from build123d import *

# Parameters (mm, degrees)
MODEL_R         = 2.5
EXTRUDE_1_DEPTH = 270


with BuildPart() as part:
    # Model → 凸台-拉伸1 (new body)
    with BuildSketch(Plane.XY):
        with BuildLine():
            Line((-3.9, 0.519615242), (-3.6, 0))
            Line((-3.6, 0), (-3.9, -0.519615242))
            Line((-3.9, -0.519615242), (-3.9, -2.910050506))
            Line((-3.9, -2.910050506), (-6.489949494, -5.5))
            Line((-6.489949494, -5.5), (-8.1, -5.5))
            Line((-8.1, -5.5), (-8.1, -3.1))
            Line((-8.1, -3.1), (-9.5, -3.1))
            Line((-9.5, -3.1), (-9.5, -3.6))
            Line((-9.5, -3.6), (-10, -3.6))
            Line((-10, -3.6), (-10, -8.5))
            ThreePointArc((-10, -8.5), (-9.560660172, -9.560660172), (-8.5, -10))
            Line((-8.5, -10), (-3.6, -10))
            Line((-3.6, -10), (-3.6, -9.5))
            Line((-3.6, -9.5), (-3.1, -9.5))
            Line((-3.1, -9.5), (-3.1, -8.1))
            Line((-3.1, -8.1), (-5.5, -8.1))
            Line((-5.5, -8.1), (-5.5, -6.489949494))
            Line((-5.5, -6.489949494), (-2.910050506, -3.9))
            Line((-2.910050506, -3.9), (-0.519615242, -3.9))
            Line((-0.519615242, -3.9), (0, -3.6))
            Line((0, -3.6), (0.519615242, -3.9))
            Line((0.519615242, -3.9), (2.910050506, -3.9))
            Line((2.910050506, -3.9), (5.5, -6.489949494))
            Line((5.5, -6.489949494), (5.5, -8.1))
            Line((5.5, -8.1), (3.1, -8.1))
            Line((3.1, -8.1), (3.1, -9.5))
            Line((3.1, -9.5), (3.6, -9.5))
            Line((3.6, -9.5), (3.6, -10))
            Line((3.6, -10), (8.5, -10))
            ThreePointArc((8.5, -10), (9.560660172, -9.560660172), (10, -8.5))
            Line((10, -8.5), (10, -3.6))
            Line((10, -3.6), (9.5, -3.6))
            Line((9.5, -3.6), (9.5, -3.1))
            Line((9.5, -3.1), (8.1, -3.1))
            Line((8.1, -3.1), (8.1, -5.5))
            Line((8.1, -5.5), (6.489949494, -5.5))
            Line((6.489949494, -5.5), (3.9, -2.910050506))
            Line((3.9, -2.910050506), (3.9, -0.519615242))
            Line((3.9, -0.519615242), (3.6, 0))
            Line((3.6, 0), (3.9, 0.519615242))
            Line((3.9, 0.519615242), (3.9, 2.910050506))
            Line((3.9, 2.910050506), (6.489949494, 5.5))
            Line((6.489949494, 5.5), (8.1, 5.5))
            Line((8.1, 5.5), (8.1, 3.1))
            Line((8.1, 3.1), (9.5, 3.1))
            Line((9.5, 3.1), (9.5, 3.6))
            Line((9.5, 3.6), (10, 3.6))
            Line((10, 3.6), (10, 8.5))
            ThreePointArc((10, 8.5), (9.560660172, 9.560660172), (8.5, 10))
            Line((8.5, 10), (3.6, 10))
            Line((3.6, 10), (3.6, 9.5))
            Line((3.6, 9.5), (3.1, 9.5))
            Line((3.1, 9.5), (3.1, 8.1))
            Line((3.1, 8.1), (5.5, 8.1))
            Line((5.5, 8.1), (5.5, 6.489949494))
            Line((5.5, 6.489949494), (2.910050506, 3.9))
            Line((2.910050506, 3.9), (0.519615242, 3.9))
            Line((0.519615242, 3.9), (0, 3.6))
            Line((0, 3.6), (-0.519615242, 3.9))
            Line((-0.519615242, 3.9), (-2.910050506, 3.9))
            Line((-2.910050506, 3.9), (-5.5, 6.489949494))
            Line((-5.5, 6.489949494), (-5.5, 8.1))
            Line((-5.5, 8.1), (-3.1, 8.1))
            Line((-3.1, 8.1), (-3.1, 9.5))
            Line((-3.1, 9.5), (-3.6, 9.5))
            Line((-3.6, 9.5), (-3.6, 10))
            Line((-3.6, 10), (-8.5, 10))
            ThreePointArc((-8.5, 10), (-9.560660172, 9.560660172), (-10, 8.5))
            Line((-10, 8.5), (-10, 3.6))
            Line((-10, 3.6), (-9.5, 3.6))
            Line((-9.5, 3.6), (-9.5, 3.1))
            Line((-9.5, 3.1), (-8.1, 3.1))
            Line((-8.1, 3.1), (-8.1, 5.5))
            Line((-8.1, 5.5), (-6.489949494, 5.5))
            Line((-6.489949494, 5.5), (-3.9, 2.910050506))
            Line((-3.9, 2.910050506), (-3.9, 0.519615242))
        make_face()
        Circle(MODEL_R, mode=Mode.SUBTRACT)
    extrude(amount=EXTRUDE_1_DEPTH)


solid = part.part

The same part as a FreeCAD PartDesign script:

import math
import FreeCAD as App
import Part
import Sketcher
from FreeCAD import Vector
Q = App.Units.Quantity

doc = App.newDocument("Part")
body = doc.addObject("PartDesign::Body", "Body")

# Sketch on XY plane
sketch1 = body.newObject("Sketcher::SketchObject", "Sketch")
sketch1.AttachmentSupport = (doc.getObject("XY_Plane"), [""])
sketch1.MapMode = "FlatFace"
sketch1.addGeometry(Part.LineSegment(Vector(-3.9, 0.5, 0), Vector(-3.6, 0, 0)), False)
sketch1.addGeometry(Part.LineSegment(Vector(-3.6, 0, 0), Vector(-3.9, -0.5, 0)), False)
sketch1.addGeometry(Part.LineSegment(Vector(-3.9, -0.5, 0), Vector(-3.9, -2.9, 0)), False)
sketch1.addGeometry(Part.LineSegment(Vector(-3.9, -2.9, 0), Vector(-6.5, -5.5, 0)), False)
sketch1.addGeometry(Part.LineSegment(Vector(-6.5, -5.5, 0), Vector(-8.1, -5.5, 0)), False)
sketch1.addGeometry(Part.LineSegment(Vector(-8.1, -5.5, 0), Vector(-8.1, -3.1, 0)), False)
sketch1.addGeometry(Part.LineSegment(Vector(-8.1, -3.1, 0), Vector(-9.5, -3.1, 0)), False)
sketch1.addGeometry(Part.LineSegment(Vector(-9.5, -3.1, 0), Vector(-9.5, -3.6, 0)), False)
sketch1.addGeometry(Part.LineSegment(Vector(-9.5, -3.6, 0), Vector(-10, -3.6, 0)), False)
sketch1.addGeometry(Part.LineSegment(Vector(-10, -3.6, 0), Vector(-10, -8.5, 0)), False)
sketch1.addGeometry(Part.ArcOfCircle(Part.Circle(Vector(-8.5, -8.5, 0), Vector(0, 0, 1), 1.5), math.radians(180), math.radians(270)), False)
sketch1.addGeometry(Part.LineSegment(Vector(-8.5, -10, 0), Vector(-3.6, -10, 0)), False)
sketch1.addGeometry(Part.LineSegment(Vector(-3.6, -10, 0), Vector(-3.6, -9.5, 0)), False)
sketch1.addGeometry(Part.LineSegment(Vector(-3.6, -9.5, 0), Vector(-3.1, -9.5, 0)), False)
sketch1.addGeometry(Part.LineSegment(Vector(-3.1, -9.5, 0), Vector(-3.1, -8.1, 0)), False)
sketch1.addGeometry(Part.LineSegment(Vector(-3.1, -8.1, 0), Vector(-5.5, -8.1, 0)), False)
sketch1.addGeometry(Part.LineSegment(Vector(-5.5, -8.1, 0), Vector(-5.5, -6.5, 0)), False)
sketch1.addGeometry(Part.LineSegment(Vector(-5.5, -6.5, 0), Vector(-2.9, -3.9, 0)), False)
sketch1.addGeometry(Part.LineSegment(Vector(-2.9, -3.9, 0), Vector(-0.5, -3.9, 0)), False)
sketch1.addGeometry(Part.LineSegment(Vector(-0.5, -3.9, 0), Vector(0, -3.6, 0)), False)
sketch1.addGeometry(Part.LineSegment(Vector(0, -3.6, 0), Vector(0.5, -3.9, 0)), False)
sketch1.addGeometry(Part.LineSegment(Vector(0.5, -3.9, 0), Vector(2.9, -3.9, 0)), False)
sketch1.addGeometry(Part.LineSegment(Vector(2.9, -3.9, 0), Vector(5.5, -6.5, 0)), False)
sketch1.addGeometry(Part.LineSegment(Vector(5.5, -6.5, 0), Vector(5.5, -8.1, 0)), False)
sketch1.addGeometry(Part.LineSegment(Vector(5.5, -8.1, 0), Vector(3.1, -8.1, 0)), False)
sketch1.addGeometry(Part.LineSegment(Vector(3.1, -8.1, 0), Vector(3.1, -9.5, 0)), False)
sketch1.addGeometry(Part.LineSegment(Vector(3.1, -9.5, 0), Vector(3.6, -9.5, 0)), False)
sketch1.addGeometry(Part.LineSegment(Vector(3.6, -9.5, 0), Vector(3.6, -10, 0)), False)
sketch1.addGeometry(Part.LineSegment(Vector(3.6, -10, 0), Vector(8.5, -10, 0)), False)
sketch1.addGeometry(Part.ArcOfCircle(Part.Circle(Vector(8.5, -8.5, 0), Vector(0, 0, 1), 1.5), math.radians(-90), math.radians(0)), False)
sketch1.addGeometry(Part.LineSegment(Vector(10, -8.5, 0), Vector(10, -3.6, 0)), False)
sketch1.addGeometry(Part.LineSegment(Vector(10, -3.6, 0), Vector(9.5, -3.6, 0)), False)
sketch1.addGeometry(Part.LineSegment(Vector(9.5, -3.6, 0), Vector(9.5, -3.1, 0)), False)
sketch1.addGeometry(Part.LineSegment(Vector(9.5, -3.1, 0), Vector(8.1, -3.1, 0)), False)
sketch1.addGeometry(Part.LineSegment(Vector(8.1, -3.1, 0), Vector(8.1, -5.5, 0)), False)
sketch1.addGeometry(Part.LineSegment(Vector(8.1, -5.5, 0), Vector(6.5, -5.5, 0)), False)
sketch1.addGeometry(Part.LineSegment(Vector(6.5, -5.5, 0), Vector(3.9, -2.9, 0)), False)
sketch1.addGeometry(Part.LineSegment(Vector(3.9, -2.9, 0), Vector(3.9, -0.5, 0)), False)
sketch1.addGeometry(Part.LineSegment(Vector(3.9, -0.5, 0), Vector(3.6, 0, 0)), False)
sketch1.addGeometry(Part.LineSegment(Vector(3.6, 0, 0), Vector(3.9, 0.5, 0)), False)
sketch1.addGeometry(Part.LineSegment(Vector(3.9, 0.5, 0), Vector(3.9, 2.9, 0)), False)
sketch1.addGeometry(Part.LineSegment(Vector(3.9, 2.9, 0), Vector(6.5, 5.5, 0)), False)
sketch1.addGeometry(Part.LineSegment(Vector(6.5, 5.5, 0), Vector(8.1, 5.5, 0)), False)
sketch1.addGeometry(Part.LineSegment(Vector(8.1, 5.5, 0), Vector(8.1, 3.1, 0)), False)
sketch1.addGeometry(Part.LineSegment(Vector(8.1, 3.1, 0), Vector(9.5, 3.1, 0)), False)
sketch1.addGeometry(Part.LineSegment(Vector(9.5, 3.1, 0), Vector(9.5, 3.6, 0)), False)
sketch1.addGeometry(Part.LineSegment(Vector(9.5, 3.6, 0), Vector(10, 3.6, 0)), False)
sketch1.addGeometry(Part.LineSegment(Vector(10, 3.6, 0), Vector(10, 8.5, 0)), False)
sketch1.addGeometry(Part.ArcOfCircle(Part.Circle(Vector(8.5, 8.5, 0), Vector(0, 0, 1), 1.5), math.radians(0), math.radians(90)), False)
sketch1.addGeometry(Part.LineSegment(Vector(8.5, 10, 0), Vector(3.6, 10, 0)), False)
sketch1.addGeometry(Part.LineSegment(Vector(3.6, 10, 0), Vector(3.6, 9.5, 0)), False)
sketch1.addGeometry(Part.LineSegment(Vector(3.6, 9.5, 0), Vector(3.1, 9.5, 0)), False)
sketch1.addGeometry(Part.LineSegment(Vector(3.1, 9.5, 0), Vector(3.1, 8.1, 0)), False)
sketch1.addGeometry(Part.LineSegment(Vector(3.1, 8.1, 0), Vector(5.5, 8.1, 0)), False)
sketch1.addGeometry(Part.LineSegment(Vector(5.5, 8.1, 0), Vector(5.5, 6.5, 0)), False)
sketch1.addGeometry(Part.LineSegment(Vector(5.5, 6.5, 0), Vector(2.9, 3.9, 0)), False)
sketch1.addGeometry(Part.LineSegment(Vector(2.9, 3.9, 0), Vector(0.5, 3.9, 0)), False)
sketch1.addGeometry(Part.LineSegment(Vector(0.5, 3.9, 0), Vector(0, 3.6, 0)), False)
sketch1.addGeometry(Part.LineSegment(Vector(0, 3.6, 0), Vector(-0.5, 3.9, 0)), False)
sketch1.addGeometry(Part.LineSegment(Vector(-0.5, 3.9, 0), Vector(-2.9, 3.9, 0)), False)
sketch1.addGeometry(Part.LineSegment(Vector(-2.9, 3.9, 0), Vector(-5.5, 6.5, 0)), False)
sketch1.addGeometry(Part.LineSegment(Vector(-5.5, 6.5, 0), Vector(-5.5, 8.1, 0)), False)
sketch1.addGeometry(Part.LineSegment(Vector(-5.5, 8.1, 0), Vector(-3.1, 8.1, 0)), False)
sketch1.addGeometry(Part.LineSegment(Vector(-3.1, 8.1, 0), Vector(-3.1, 9.5, 0)), False)
sketch1.addGeometry(Part.LineSegment(Vector(-3.1, 9.5, 0), Vector(-3.6, 9.5, 0)), False)
sketch1.addGeometry(Part.LineSegment(Vector(-3.6, 9.5, 0), Vector(-3.6, 10, 0)), False)
sketch1.addGeometry(Part.LineSegment(Vector(-3.6, 10, 0), Vector(-8.5, 10, 0)), False)
sketch1.addGeometry(Part.ArcOfCircle(Part.Circle(Vector(-8.5, 8.5, 0), Vector(0, 0, 1), 1.5), math.radians(90), math.radians(180)), False)
sketch1.addGeometry(Part.LineSegment(Vector(-10, 8.5, 0), Vector(-10, 3.6, 0)), False)
sketch1.addGeometry(Part.LineSegment(Vector(-10, 3.6, 0), Vector(-9.5, 3.6, 0)), False)
sketch1.addGeometry(Part.LineSegment(Vector(-9.5, 3.6, 0), Vector(-9.5, 3.1, 0)), False)
sketch1.addGeometry(Part.LineSegment(Vector(-9.5, 3.1, 0), Vector(-8.1, 3.1, 0)), False)
sketch1.addGeometry(Part.LineSegment(Vector(-8.1, 3.1, 0), Vector(-8.1, 5.5, 0)), False)
sketch1.addGeometry(Part.LineSegment(Vector(-8.1, 5.5, 0), Vector(-6.5, 5.5, 0)), False)
sketch1.addGeometry(Part.LineSegment(Vector(-6.5, 5.5, 0), Vector(-3.9, 2.9, 0)), False)
sketch1.addGeometry(Part.LineSegment(Vector(-3.9, 2.9, 0), Vector(-3.9, 0.5, 0)), False)
sketch1.addGeometry(Part.Circle(Vector(0, 0, 0), Vector(0, 0, 1), 2.5), False)
sketch1.addConstraint(Sketcher.Constraint("Coincident", 0, 2, 1, 1))
sketch1.addConstraint(Sketcher.Constraint("Coincident", 1, 2, 2, 1))
sketch1.addConstraint(Sketcher.Constraint("Coincident", 2, 2, 3, 1))
sketch1.addConstraint(Sketcher.Constraint("Coincident", 3, 2, 4, 1))
sketch1.addConstraint(Sketcher.Constraint("Coincident", 4, 2, 5, 1))
sketch1.addConstraint(Sketcher.Constraint("Coincident", 5, 2, 6, 1))
sketch1.addConstraint(Sketcher.Constraint("Coincident", 6, 2, 7, 1))
sketch1.addConstraint(Sketcher.Constraint("Coincident", 7, 2, 8, 1))
sketch1.addConstraint(Sketcher.Constraint("Coincident", 8, 2, 9, 1))
sketch1.addConstraint(Sketcher.Constraint("Tangent", 9, 2, 10, 1))
sketch1.addConstraint(Sketcher.Constraint("Tangent", 10, 2, 11, 1))
sketch1.addConstraint(Sketcher.Constraint("Coincident", 11, 2, 12, 1))
sketch1.addConstraint(Sketcher.Constraint("Coincident", 12, 2, 13, 1))
sketch1.addConstraint(Sketcher.Constraint("Coincident", 13, 2, 14, 1))
sketch1.addConstraint(Sketcher.Constraint("Coincident", 14, 2, 15, 1))
sketch1.addConstraint(Sketcher.Constraint("Coincident", 15, 2, 16, 1))
sketch1.addConstraint(Sketcher.Constraint("Coincident", 16, 2, 17, 1))
sketch1.addConstraint(Sketcher.Constraint("Coincident", 17, 2, 18, 1))
sketch1.addConstraint(Sketcher.Constraint("Coincident", 18, 2, 19, 1))
sketch1.addConstraint(Sketcher.Constraint("Coincident", 19, 2, 20, 1))
sketch1.addConstraint(Sketcher.Constraint("Coincident", 20, 2, 21, 1))
sketch1.addConstraint(Sketcher.Constraint("Coincident", 21, 2, 22, 1))
sketch1.addConstraint(Sketcher.Constraint("Coincident", 22, 2, 23, 1))
sketch1.addConstraint(Sketcher.Constraint("Coincident", 23, 2, 24, 1))
sketch1.addConstraint(Sketcher.Constraint("Coincident", 24, 2, 25, 1))
sketch1.addConstraint(Sketcher.Constraint("Coincident", 25, 2, 26, 1))
sketch1.addConstraint(Sketcher.Constraint("Coincident", 26, 2, 27, 1))
sketch1.addConstraint(Sketcher.Constraint("Coincident", 27, 2, 28, 1))
sketch1.addConstraint(Sketcher.Constraint("Tangent", 28, 2, 29, 1))
sketch1.addConstraint(Sketcher.Constraint("Tangent", 29, 2, 30, 1))
sketch1.addConstraint(Sketcher.Constraint("Coincident", 30, 2, 31, 1))
sketch1.addConstraint(Sketcher.Constraint("Coincident", 31, 2, 32, 1))
sketch1.addConstraint(Sketcher.Constraint("Coincident", 32, 2, 33, 1))
sketch1.addConstraint(Sketcher.Constraint("Coincident", 33, 2, 34, 1))
sketch1.addConstraint(Sketcher.Constraint("Coincident", 34, 2, 35, 1))
sketch1.addConstraint(Sketcher.Constraint("Coincident", 35, 2, 36, 1))
sketch1.addConstraint(Sketcher.Constraint("Coincident", 36, 2, 37, 1))
sketch1.addConstraint(Sketcher.Constraint("Coincident", 37, 2, 38, 1))
sketch1.addConstraint(Sketcher.Constraint("Coincident", 38, 2, 39, 1))
sketch1.addConstraint(Sketcher.Constraint("Coincident", 39, 2, 40, 1))
sketch1.addConstraint(Sketcher.Constraint("Coincident", 40, 2, 41, 1))
sketch1.addConstraint(Sketcher.Constraint("Coincident", 41, 2, 42, 1))
sketch1.addConstraint(Sketcher.Constraint("Coincident", 42, 2, 43, 1))
sketch1.addConstraint(Sketcher.Constraint("Coincident", 43, 2, 44, 1))
sketch1.addConstraint(Sketcher.Constraint("Coincident", 44, 2, 45, 1))
sketch1.addConstraint(Sketcher.Constraint("Coincident", 45, 2, 46, 1))
sketch1.addConstraint(Sketcher.Constraint("Coincident", 46, 2, 47, 1))
sketch1.addConstraint(Sketcher.Constraint("Tangent", 47, 2, 48, 1))
sketch1.addConstraint(Sketcher.Constraint("Tangent", 48, 2, 49, 1))
sketch1.addConstraint(Sketcher.Constraint("Coincident", 49, 2, 50, 1))
sketch1.addConstraint(Sketcher.Constraint("Coincident", 50, 2, 51, 1))
sketch1.addConstraint(Sketcher.Constraint("Coincident", 51, 2, 52, 1))
sketch1.addConstraint(Sketcher.Constraint("Coincident", 52, 2, 53, 1))
sketch1.addConstraint(Sketcher.Constraint("Coincident", 53, 2, 54, 1))
sketch1.addConstraint(Sketcher.Constraint("Coincident", 54, 2, 55, 1))
sketch1.addConstraint(Sketcher.Constraint("Coincident", 55, 2, 56, 1))
sketch1.addConstraint(Sketcher.Constraint("Coincident", 56, 2, 57, 1))
sketch1.addConstraint(Sketcher.Constraint("Coincident", 57, 2, 58, 1))
sketch1.addConstraint(Sketcher.Constraint("Coincident", 58, 2, 59, 1))
sketch1.addConstraint(Sketcher.Constraint("Coincident", 59, 2, 60, 1))
sketch1.addConstraint(Sketcher.Constraint("Coincident", 60, 2, 61, 1))
sketch1.addConstraint(Sketcher.Constraint("Coincident", 61, 2, 62, 1))
sketch1.addConstraint(Sketcher.Constraint("Coincident", 62, 2, 63, 1))
sketch1.addConstraint(Sketcher.Constraint("Coincident", 63, 2, 64, 1))
sketch1.addConstraint(Sketcher.Constraint("Coincident", 64, 2, 65, 1))
sketch1.addConstraint(Sketcher.Constraint("Coincident", 65, 2, 66, 1))
sketch1.addConstraint(Sketcher.Constraint("Tangent", 66, 2, 67, 1))
sketch1.addConstraint(Sketcher.Constraint("Tangent", 67, 2, 68, 1))
sketch1.addConstraint(Sketcher.Constraint("Coincident", 68, 2, 69, 1))
sketch1.addConstraint(Sketcher.Constraint("Coincident", 69, 2, 70, 1))
sketch1.addConstraint(Sketcher.Constraint("Coincident", 70, 2, 71, 1))
sketch1.addConstraint(Sketcher.Constraint("Coincident", 71, 2, 72, 1))
sketch1.addConstraint(Sketcher.Constraint("Coincident", 72, 2, 73, 1))
sketch1.addConstraint(Sketcher.Constraint("Coincident", 73, 2, 74, 1))
sketch1.addConstraint(Sketcher.Constraint("Coincident", 74, 2, 75, 1))
sketch1.addConstraint(Sketcher.Constraint("Coincident", 75, 2, 0, 1))
sketch1.addConstraint(Sketcher.Constraint("Vertical", 2))
sketch1.addConstraint(Sketcher.Constraint("Horizontal", 4))
sketch1.addConstraint(Sketcher.Constraint("Vertical", 5))
sketch1.addConstraint(Sketcher.Constraint("Horizontal", 6))
sketch1.addConstraint(Sketcher.Constraint("Vertical", 7))
sketch1.addConstraint(Sketcher.Constraint("Horizontal", 8))
sketch1.addConstraint(Sketcher.Constraint("Vertical", 9))
sketch1.addConstraint(Sketcher.Constraint("Horizontal", 11))
sketch1.addConstraint(Sketcher.Constraint("Vertical", 12))
sketch1.addConstraint(Sketcher.Constraint("Horizontal", 13))
sketch1.addConstraint(Sketcher.Constraint("Vertical", 14))
sketch1.addConstraint(Sketcher.Constraint("Horizontal", 15))
sketch1.addConstraint(Sketcher.Constraint("Vertical", 16))
sketch1.addConstraint(Sketcher.Constraint("Horizontal", 18))
sketch1.addConstraint(Sketcher.Constraint("Horizontal", 21))
sketch1.addConstraint(Sketcher.Constraint("Vertical", 23))
sketch1.addConstraint(Sketcher.Constraint("Horizontal", 24))
sketch1.addConstraint(Sketcher.Constraint("Vertical", 25))
sketch1.addConstraint(Sketcher.Constraint("Horizontal", 26))
sketch1.addConstraint(Sketcher.Constraint("Vertical", 27))
sketch1.addConstraint(Sketcher.Constraint("Horizontal", 28))
sketch1.addConstraint(Sketcher.Constraint("Vertical", 30))
sketch1.addConstraint(Sketcher.Constraint("Horizontal", 31))
sketch1.addConstraint(Sketcher.Constraint("Vertical", 32))
sketch1.addConstraint(Sketcher.Constraint("Horizontal", 33))
sketch1.addConstraint(Sketcher.Constraint("Vertical", 34))
sketch1.addConstraint(Sketcher.Constraint("Horizontal", 35))
sketch1.addConstraint(Sketcher.Constraint("Vertical", 37))
sketch1.addConstraint(Sketcher.Constraint("Vertical", 40))
sketch1.addConstraint(Sketcher.Constraint("Horizontal", 42))
sketch1.addConstraint(Sketcher.Constraint("Vertical", 43))
sketch1.addConstraint(Sketcher.Constraint("Horizontal", 44))
sketch1.addConstraint(Sketcher.Constraint("Vertical", 45))
sketch1.addConstraint(Sketcher.Constraint("Horizontal", 46))
sketch1.addConstraint(Sketcher.Constraint("Vertical", 47))
sketch1.addConstraint(Sketcher.Constraint("Horizontal", 49))
sketch1.addConstraint(Sketcher.Constraint("Vertical", 50))
sketch1.addConstraint(Sketcher.Constraint("Horizontal", 51))
sketch1.addConstraint(Sketcher.Constraint("Vertical", 52))
sketch1.addConstraint(Sketcher.Constraint("Horizontal", 53))
sketch1.addConstraint(Sketcher.Constraint("Vertical", 54))
sketch1.addConstraint(Sketcher.Constraint("Horizontal", 56))
sketch1.addConstraint(Sketcher.Constraint("Horizontal", 59))
sketch1.addConstraint(Sketcher.Constraint("Vertical", 61))
sketch1.addConstraint(Sketcher.Constraint("Horizontal", 62))
sketch1.addConstraint(Sketcher.Constraint("Vertical", 63))
sketch1.addConstraint(Sketcher.Constraint("Horizontal", 64))
sketch1.addConstraint(Sketcher.Constraint("Vertical", 65))
sketch1.addConstraint(Sketcher.Constraint("Horizontal", 66))
sketch1.addConstraint(Sketcher.Constraint("Vertical", 68))
sketch1.addConstraint(Sketcher.Constraint("Horizontal", 69))
sketch1.addConstraint(Sketcher.Constraint("Vertical", 70))
sketch1.addConstraint(Sketcher.Constraint("Horizontal", 71))
sketch1.addConstraint(Sketcher.Constraint("Vertical", 72))
sketch1.addConstraint(Sketcher.Constraint("Horizontal", 73))
sketch1.addConstraint(Sketcher.Constraint("Vertical", 75))
sketch1.addConstraint(Sketcher.Constraint("Coincident", 76, 3, -1, 1))
sketch1.addConstraint(Sketcher.Constraint("Equal", 10, 29))
sketch1.addConstraint(Sketcher.Constraint("Equal", 29, 48))
sketch1.addConstraint(Sketcher.Constraint("Equal", 48, 67))
sketch1.addConstraint(Sketcher.Constraint("Symmetric", 10, 3, 48, 3, -1, 1))
sketch1.addConstraint(Sketcher.Constraint("Symmetric", 29, 3, 67, 3, -1, 1))
sketch1.addConstraint(Sketcher.Constraint("Symmetric", 0, 2, 38, 2, -1, 1))
sketch1.addConstraint(Sketcher.Constraint("Symmetric", 1, 2, 39, 2, -1, 1))
sketch1.addConstraint(Sketcher.Constraint("Symmetric", 3, 2, 41, 2, -1, 1))
sketch1.addConstraint(Sketcher.Constraint("Symmetric", 5, 2, 43, 2, -1, 1))
sketch1.addConstraint(Sketcher.Constraint("Symmetric", 7, 2, 45, 2, -1, 1))
sketch1.addConstraint(Sketcher.Constraint("Symmetric", 12, 2, 50, 2, -1, 1))
sketch1.addConstraint(Sketcher.Constraint("Symmetric", 14, 2, 52, 2, -1, 1))
sketch1.addConstraint(Sketcher.Constraint("Symmetric", 16, 2, 54, 2, -1, 1))
sketch1.addConstraint(Sketcher.Constraint("Symmetric", 17, 2, 55, 2, -1, 1))
sketch1.addConstraint(Sketcher.Constraint("Symmetric", 19, 2, 57, 2, -1, 1))
sketch1.addConstraint(Sketcher.Constraint("Symmetric", 20, 2, 58, 2, -1, 1))
sketch1.addConstraint(Sketcher.Constraint("Symmetric", 22, 2, 60, 2, -1, 1))
sketch1.addConstraint(Sketcher.Constraint("Symmetric", 24, 2, 62, 2, -1, 1))
sketch1.addConstraint(Sketcher.Constraint("Symmetric", 26, 2, 64, 2, -1, 1))
sketch1.addConstraint(Sketcher.Constraint("Symmetric", 31, 2, 69, 2, -1, 1))
sketch1.addConstraint(Sketcher.Constraint("Symmetric", 33, 2, 71, 2, -1, 1))
sketch1.addConstraint(Sketcher.Constraint("Symmetric", 35, 2, 73, 2, -1, 1))
sketch1.addConstraint(Sketcher.Constraint("Symmetric", 36, 2, 74, 2, -1, 1))
sketch1.addConstraint(Sketcher.Constraint("Symmetric", 10, 3, 29, 3, -2))
sketch1.addConstraint(Sketcher.Constraint("Symmetric", 18, 2, 20, 2, -2))
sketch1.addConstraint(Sketcher.Constraint("Symmetric", 16, 2, 22, 2, -2))
sketch1.addConstraint(Sketcher.Constraint("Symmetric", 14, 2, 24, 2, -2))
sketch1.addConstraint(Sketcher.Constraint("Symmetric", 12, 2, 26, 2, -2))
sketch1.addConstraint(Sketcher.Constraint("Symmetric", 7, 2, 31, 2, -2))
sketch1.addConstraint(Sketcher.Constraint("Symmetric", 5, 2, 33, 2, -2))
sketch1.addConstraint(Sketcher.Constraint("Symmetric", 3, 2, 35, 2, -2))
sketch1.addConstraint(Sketcher.Constraint("Symmetric", 2, 2, 36, 2, -2))
sketch1.addConstraint(Sketcher.Constraint("PointOnObject", 0, 2, -1))
sketch1.addConstraint(Sketcher.Constraint("PointOnObject", 19, 2, -2))
sketch1.addConstraint(Sketcher.Constraint("Parallel", 3, 17))
sketch1.addConstraint(Sketcher.Constraint("Perpendicular", 0, 19))
sketch1.addConstraint(Sketcher.Constraint("Perpendicular", 1, 20))
sketch1.addConstraint(Sketcher.Constraint("Perpendicular", 17, 22))
sketch1.addConstraint(Sketcher.Constraint("Parallel", 22, 36))
sketch1.addConstraint(Sketcher.Constraint("Perpendicular", 19, 38))
sketch1.addConstraint(Sketcher.Constraint("Perpendicular", 36, 41))
sketch1.addConstraint(Sketcher.Constraint("Perpendicular", 38, 57))
sketch1.addConstraint(Sketcher.Constraint("Perpendicular", 55, 60))
sketch1.addConstraint(Sketcher.Constraint("Horizontal", 8, 2, 19, 2))
sketch1.addConstraint(Sketcher.Constraint("Vertical", 0, 2, 11, 2))
sketch1.addConstraint(Sketcher.Constraint("Equal", 8, 13))
sketch1.addConstraint(Sketcher.Constraint("Equal", 59, 2))
sketch1.addConstraint(Sketcher.Constraint("Equal", 62, 5))
sketch1.addConstraint(Sketcher.Constraint("Equal", 69, 7))
sketch1.addConstraint(Sketcher.Constraint("Equal", 66, 9))
sketch1.addConstraint(Sketcher.Constraint("Equal", 7, 12))
sketch1.addConstraint(Sketcher.Constraint("Equal", 71, 14))
sketch1.addConstraint(Sketcher.Constraint("Equal", 73, 16))
sketch1.addConstraint(Sketcher.Constraint("Equal", 3, 17))
sketch1.addConstraint(Sketcher.Constraint("Diameter", 76, Q("5 mm")))
sketch1.addConstraint(Sketcher.Constraint("Radius", 10, Q("1.5 mm")))
sketch1.addConstraint(Sketcher.Constraint("Angle", 0, Q("-60 deg")))
sketch1.addConstraint(Sketcher.Constraint("DistanceX", 6, 2, 6, 1, Q("1.4 mm")))
sketch1.addConstraint(Sketcher.Constraint("DistanceX", 8, 2, 8, 1, Q("0.5 mm")))
sketch1.addConstraint(Sketcher.Constraint("DistanceX", 11, 1, 11, 2, Q("4.9 mm")))
sketch1.addConstraint(Sketcher.Constraint("DistanceX", 15, 2, 15, 1, Q("2.4 mm")))
sketch1.addConstraint(Sketcher.Constraint("DistanceX", 8, 2, -1, 1, Q("10 mm")))
sketch1.addConstraint(Sketcher.Constraint("Distance", 0, Q("0.6 mm")))
sketch1.addConstraint(Sketcher.Constraint("DistanceX", 4, 2, 4, 1, Q("1.610051 mm")))
pad1 = body.newObject("PartDesign::Pad", "Pad")
pad1.Profile = sketch1
pad1.Length = 270

doc.recompute()
